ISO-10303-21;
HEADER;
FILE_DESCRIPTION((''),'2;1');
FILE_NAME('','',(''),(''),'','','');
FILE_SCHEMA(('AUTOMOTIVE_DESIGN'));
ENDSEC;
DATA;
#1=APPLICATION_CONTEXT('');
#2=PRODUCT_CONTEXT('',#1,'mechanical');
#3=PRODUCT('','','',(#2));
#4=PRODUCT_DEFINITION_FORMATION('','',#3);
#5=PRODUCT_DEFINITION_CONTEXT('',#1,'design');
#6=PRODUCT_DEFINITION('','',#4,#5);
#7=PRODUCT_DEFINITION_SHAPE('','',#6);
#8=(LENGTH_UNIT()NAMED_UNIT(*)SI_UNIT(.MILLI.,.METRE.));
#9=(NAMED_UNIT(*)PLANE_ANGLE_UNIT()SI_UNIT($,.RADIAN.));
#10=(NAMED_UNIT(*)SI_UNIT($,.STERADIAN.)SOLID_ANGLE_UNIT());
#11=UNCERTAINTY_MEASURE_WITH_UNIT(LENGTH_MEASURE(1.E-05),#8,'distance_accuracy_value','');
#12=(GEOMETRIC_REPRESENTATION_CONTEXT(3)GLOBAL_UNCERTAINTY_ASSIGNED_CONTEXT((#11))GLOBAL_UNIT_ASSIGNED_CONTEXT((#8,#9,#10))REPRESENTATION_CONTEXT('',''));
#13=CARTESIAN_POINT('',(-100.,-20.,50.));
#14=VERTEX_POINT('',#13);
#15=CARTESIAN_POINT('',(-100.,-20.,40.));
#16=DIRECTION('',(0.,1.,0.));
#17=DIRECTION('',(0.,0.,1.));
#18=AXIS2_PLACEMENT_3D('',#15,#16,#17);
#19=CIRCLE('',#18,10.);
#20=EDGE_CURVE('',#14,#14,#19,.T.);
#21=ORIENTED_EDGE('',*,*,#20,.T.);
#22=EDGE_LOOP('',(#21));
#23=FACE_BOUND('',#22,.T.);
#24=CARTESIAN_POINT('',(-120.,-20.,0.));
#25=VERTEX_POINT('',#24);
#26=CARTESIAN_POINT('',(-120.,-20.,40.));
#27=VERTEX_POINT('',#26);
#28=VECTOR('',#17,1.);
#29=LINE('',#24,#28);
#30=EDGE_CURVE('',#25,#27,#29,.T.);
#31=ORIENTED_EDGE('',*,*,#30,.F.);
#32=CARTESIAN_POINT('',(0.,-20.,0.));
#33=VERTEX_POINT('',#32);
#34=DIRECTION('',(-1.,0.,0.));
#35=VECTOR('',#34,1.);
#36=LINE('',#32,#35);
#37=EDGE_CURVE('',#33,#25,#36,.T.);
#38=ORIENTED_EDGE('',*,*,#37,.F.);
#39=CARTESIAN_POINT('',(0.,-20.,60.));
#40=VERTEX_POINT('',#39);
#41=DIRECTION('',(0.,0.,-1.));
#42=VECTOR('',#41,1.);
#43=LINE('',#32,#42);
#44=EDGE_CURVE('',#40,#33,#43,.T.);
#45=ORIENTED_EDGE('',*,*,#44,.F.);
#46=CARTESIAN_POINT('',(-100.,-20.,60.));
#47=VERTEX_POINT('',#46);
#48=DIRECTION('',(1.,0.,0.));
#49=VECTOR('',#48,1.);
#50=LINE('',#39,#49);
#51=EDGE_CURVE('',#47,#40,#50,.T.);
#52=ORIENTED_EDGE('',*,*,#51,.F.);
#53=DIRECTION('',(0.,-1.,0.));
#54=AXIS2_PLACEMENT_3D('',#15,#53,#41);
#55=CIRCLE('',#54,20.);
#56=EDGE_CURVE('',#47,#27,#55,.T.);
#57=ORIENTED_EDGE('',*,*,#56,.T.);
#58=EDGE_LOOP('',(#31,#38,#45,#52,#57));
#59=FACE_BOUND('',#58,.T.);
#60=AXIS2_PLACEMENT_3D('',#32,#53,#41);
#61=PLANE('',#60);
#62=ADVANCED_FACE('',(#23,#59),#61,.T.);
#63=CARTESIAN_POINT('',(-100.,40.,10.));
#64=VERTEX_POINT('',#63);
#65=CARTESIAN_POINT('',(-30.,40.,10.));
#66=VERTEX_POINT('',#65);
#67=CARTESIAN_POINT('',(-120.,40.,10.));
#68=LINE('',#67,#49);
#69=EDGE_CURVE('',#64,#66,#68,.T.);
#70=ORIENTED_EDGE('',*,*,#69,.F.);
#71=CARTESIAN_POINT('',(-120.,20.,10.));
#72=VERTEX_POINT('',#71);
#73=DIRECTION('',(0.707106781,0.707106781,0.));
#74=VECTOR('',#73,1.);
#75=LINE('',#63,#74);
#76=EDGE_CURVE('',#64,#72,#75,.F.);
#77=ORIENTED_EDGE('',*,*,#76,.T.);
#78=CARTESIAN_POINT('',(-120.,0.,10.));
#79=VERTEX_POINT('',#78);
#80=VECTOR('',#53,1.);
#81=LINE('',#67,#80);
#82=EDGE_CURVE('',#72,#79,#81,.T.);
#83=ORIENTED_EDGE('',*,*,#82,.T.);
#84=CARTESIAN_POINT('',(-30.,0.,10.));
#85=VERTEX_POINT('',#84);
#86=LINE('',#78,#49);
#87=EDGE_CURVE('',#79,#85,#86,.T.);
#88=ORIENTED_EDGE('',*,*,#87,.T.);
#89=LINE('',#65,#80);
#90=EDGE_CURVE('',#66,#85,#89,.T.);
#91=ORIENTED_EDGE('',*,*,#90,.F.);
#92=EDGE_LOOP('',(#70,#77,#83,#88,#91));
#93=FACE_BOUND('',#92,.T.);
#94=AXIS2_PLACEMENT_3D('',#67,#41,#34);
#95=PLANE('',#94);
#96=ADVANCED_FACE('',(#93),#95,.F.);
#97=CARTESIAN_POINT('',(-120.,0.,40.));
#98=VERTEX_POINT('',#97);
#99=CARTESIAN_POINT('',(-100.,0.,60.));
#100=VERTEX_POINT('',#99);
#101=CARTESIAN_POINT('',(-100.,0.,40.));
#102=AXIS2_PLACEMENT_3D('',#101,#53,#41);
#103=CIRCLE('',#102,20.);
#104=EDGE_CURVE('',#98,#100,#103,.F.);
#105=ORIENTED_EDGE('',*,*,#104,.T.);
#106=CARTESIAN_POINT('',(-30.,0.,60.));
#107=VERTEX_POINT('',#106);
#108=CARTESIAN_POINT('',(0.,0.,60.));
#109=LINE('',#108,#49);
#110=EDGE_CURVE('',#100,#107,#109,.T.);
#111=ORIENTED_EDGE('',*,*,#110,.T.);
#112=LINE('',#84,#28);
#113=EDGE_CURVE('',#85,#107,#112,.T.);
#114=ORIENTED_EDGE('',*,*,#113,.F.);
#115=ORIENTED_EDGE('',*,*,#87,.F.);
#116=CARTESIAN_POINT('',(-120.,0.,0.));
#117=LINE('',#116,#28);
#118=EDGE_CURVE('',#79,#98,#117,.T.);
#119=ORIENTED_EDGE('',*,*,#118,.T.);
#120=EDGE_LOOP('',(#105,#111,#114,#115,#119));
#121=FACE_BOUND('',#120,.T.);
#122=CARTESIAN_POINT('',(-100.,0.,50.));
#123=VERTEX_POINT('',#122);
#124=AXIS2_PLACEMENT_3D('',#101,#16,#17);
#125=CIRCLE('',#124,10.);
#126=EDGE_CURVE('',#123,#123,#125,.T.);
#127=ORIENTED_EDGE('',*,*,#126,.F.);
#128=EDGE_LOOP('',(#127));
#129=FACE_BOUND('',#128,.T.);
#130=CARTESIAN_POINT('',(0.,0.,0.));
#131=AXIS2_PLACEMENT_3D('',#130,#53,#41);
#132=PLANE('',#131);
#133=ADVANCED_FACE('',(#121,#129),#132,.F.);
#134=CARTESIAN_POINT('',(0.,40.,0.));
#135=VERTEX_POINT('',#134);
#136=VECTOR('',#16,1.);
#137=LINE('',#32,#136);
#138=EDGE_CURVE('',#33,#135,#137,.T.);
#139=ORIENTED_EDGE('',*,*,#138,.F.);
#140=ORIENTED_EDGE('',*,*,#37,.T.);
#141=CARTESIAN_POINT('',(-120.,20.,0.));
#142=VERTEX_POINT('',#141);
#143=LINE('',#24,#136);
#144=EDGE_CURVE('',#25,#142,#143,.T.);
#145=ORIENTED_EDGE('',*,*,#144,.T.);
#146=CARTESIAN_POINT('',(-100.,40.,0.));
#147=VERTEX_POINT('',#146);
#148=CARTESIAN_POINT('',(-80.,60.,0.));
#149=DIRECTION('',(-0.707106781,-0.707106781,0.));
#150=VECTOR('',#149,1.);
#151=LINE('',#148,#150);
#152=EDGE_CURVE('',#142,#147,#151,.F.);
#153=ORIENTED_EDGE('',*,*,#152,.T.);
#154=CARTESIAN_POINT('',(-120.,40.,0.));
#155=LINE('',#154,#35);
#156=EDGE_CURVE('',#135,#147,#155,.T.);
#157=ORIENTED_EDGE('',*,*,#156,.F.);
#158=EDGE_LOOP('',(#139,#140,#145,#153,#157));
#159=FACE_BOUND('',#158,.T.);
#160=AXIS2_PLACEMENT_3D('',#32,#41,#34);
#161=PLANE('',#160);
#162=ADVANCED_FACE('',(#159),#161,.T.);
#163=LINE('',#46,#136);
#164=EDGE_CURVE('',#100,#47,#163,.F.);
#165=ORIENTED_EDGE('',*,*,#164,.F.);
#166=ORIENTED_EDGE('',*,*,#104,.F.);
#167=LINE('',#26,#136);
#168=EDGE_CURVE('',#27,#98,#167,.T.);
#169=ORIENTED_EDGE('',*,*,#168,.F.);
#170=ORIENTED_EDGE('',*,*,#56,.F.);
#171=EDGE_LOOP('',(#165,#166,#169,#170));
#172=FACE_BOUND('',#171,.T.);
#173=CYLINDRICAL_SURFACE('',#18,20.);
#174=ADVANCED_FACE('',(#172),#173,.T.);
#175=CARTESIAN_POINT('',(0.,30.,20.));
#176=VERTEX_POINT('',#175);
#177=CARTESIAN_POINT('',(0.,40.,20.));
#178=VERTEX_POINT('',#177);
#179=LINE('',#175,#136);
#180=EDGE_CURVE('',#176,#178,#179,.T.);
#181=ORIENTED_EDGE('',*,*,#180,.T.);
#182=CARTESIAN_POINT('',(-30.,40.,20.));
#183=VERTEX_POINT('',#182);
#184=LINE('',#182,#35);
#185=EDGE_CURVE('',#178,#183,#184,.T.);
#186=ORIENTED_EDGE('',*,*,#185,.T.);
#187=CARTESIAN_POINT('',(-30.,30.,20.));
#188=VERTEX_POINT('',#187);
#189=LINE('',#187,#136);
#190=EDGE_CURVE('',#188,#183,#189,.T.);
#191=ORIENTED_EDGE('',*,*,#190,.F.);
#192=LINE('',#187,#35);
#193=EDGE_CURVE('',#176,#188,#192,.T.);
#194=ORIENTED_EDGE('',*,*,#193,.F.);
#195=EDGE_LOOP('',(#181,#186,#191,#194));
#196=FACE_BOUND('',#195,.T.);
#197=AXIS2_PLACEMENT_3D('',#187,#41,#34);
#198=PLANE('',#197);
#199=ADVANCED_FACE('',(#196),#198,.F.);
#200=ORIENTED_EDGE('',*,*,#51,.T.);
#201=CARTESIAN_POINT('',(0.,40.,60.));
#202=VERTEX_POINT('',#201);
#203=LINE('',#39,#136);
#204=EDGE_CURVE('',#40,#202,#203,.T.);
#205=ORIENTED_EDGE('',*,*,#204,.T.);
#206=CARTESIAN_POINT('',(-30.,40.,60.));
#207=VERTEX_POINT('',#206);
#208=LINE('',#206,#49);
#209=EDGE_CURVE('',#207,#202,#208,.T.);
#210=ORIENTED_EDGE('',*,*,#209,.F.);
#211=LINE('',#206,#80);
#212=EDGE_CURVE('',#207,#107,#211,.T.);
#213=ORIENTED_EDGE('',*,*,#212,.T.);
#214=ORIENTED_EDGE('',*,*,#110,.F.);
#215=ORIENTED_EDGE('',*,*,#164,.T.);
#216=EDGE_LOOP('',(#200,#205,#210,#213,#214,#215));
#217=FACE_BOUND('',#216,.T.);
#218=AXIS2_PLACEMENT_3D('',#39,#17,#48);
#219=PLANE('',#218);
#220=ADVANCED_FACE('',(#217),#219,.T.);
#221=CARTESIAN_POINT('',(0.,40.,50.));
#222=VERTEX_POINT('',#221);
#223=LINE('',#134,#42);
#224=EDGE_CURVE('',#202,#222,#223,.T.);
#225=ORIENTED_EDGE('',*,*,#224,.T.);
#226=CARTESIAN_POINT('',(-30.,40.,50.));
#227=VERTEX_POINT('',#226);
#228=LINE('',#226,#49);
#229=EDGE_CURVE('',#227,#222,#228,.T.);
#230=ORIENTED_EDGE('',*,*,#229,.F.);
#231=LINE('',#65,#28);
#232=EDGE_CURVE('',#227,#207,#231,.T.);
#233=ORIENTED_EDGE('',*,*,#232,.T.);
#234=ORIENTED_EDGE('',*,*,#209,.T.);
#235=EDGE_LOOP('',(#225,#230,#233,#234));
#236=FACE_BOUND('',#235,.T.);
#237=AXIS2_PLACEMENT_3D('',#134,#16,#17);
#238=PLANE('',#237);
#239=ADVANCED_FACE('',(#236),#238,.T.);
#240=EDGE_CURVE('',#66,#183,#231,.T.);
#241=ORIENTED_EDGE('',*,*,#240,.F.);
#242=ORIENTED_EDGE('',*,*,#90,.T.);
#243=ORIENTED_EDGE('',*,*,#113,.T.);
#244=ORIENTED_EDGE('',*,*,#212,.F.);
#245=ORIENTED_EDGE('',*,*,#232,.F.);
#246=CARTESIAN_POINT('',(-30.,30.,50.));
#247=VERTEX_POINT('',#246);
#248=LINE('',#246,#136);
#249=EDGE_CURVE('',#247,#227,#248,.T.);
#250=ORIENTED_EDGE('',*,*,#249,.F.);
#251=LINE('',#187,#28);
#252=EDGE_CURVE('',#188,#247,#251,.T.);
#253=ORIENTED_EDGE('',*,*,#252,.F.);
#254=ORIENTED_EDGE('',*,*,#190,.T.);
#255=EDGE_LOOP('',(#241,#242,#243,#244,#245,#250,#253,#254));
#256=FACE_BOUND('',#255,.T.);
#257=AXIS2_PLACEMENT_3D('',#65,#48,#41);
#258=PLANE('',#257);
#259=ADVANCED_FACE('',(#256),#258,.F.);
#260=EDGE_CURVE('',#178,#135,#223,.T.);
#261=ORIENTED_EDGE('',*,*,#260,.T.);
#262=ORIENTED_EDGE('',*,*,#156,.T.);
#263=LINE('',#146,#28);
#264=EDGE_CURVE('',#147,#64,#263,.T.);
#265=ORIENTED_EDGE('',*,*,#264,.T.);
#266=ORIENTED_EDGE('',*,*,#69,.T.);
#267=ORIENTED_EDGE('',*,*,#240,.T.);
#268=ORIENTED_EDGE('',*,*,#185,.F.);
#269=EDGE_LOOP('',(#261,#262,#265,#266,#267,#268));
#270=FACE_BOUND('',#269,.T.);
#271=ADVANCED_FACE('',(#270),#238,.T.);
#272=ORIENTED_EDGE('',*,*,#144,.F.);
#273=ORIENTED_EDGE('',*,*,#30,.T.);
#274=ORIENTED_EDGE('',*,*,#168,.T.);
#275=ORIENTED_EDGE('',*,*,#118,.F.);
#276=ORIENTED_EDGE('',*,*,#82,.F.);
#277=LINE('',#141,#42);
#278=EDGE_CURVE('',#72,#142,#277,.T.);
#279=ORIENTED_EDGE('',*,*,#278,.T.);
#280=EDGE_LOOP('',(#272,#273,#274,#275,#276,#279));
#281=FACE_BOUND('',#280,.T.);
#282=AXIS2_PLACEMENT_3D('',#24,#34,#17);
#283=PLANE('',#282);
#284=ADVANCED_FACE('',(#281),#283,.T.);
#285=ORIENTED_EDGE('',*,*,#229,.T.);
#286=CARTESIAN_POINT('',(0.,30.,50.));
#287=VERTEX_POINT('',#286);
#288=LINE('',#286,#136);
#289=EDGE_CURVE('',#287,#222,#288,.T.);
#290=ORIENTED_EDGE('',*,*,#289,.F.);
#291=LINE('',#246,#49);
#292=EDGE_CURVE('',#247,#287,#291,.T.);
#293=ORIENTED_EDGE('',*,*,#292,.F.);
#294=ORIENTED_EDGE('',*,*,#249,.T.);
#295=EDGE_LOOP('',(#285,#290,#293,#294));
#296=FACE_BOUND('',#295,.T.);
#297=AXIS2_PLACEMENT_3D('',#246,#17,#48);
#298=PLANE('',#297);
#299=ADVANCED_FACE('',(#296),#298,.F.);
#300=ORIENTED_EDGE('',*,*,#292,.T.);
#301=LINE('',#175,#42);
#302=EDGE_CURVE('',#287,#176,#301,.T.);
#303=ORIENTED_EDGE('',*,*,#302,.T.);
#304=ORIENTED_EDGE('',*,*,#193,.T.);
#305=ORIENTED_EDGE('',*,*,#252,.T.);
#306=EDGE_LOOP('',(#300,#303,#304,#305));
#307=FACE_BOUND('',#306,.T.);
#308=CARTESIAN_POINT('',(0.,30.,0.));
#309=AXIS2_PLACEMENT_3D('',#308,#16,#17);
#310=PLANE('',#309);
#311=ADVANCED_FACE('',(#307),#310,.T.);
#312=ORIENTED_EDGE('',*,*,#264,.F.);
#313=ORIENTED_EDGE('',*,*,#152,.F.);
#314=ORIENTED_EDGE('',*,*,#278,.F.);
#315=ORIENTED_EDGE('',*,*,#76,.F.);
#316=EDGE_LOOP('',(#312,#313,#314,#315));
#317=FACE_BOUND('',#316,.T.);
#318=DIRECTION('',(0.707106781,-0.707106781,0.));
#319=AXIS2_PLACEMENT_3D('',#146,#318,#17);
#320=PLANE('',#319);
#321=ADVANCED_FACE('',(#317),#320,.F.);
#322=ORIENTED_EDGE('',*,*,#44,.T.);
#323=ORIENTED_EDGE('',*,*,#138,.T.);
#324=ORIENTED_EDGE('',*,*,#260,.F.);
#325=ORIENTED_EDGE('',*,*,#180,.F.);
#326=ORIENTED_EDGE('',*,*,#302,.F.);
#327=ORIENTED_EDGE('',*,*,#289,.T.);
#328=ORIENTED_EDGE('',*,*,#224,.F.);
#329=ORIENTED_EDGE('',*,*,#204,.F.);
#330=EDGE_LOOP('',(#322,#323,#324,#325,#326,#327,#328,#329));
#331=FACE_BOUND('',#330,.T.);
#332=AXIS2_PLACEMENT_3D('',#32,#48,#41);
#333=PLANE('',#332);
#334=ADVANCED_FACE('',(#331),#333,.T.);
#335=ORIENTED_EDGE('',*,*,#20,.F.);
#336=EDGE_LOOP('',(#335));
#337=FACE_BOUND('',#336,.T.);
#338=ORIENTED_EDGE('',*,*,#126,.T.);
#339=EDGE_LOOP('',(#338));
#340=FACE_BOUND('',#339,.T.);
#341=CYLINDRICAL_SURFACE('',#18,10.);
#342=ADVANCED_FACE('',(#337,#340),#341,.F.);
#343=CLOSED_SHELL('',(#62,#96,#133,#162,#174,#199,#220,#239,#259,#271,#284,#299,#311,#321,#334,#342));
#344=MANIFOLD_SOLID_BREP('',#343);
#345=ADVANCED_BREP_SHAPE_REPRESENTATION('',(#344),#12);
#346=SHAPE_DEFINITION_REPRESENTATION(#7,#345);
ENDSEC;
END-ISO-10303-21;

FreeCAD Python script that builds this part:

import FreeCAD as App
import Part
import Sketcher

V = App.Vector
Q = App.Units.Quantity


def edges_at(feature, points):
    """Names of the edges that pass closest to the given points."""
    edges = feature.Shape.Edges
    near = lambda p: min(range(len(edges)), key=lambda i: edges[i].distToShape(Part.Vertex(*p))[0])
    return sorted({f"Edge{near(p) + 1}" for p in points})


def add_polygon(sketch, points):
    """Adds a closed chain of lines whose ends are joined by coincident constraints."""
    first, n = sketch.GeometryCount, len(points)
    for a, b in zip(points, points[1:] + points[:1]):
        sketch.addGeometry(Part.LineSegment(App.Vector(*a, 0), App.Vector(*b, 0)), False)
    for i in range(n):
        sketch.addConstraint(Sketcher.Constraint("Coincident", first + i, 2, first + (i + 1) % n, 1))

doc = App.newDocument("Part")
body = doc.addObject("PartDesign::Body", "Body")

# Sketch on XZ plane
sketch1 = body.newObject("Sketcher::SketchObject", "Sketch")
sketch1.AttachmentSupport = (doc.getObject("XZ_Plane"), [""])
sketch1.MapMode = "FlatFace"
add_polygon(sketch1, [(-120, 0), (-120, 60), (0, 60), (0, 0)])  # lines 0-3
sketch1.addConstraint([
    Sketcher.Constraint("Vertical", 0),
    Sketcher.Constraint("Horizontal", 1),
    Sketcher.Constraint("Vertical", 2),
    Sketcher.Constraint("Horizontal", 3),
    Sketcher.Constraint("Coincident", 2, 2, -1, 1),
    Sketcher.Constraint("DistanceX", 1, 1, 1, 2, Q("120 mm")),
    Sketcher.Constraint("DistanceY", 0, 1, 0, 2, Q("60 mm")),
])
pad1 = body.newObject("PartDesign::Pad", "Pad")
pad1.Profile = sketch1
pad1.Length = 20

# Sketch on XZ plane
sketch2 = body.newObject("Sketcher::SketchObject", "Sketch001")
sketch2.AttachmentSupport = (doc.getObject("XZ_Plane"), [""])
sketch2.MapMode = "FlatFace"
add_polygon(sketch2, [(-120, 10), (-30, 10), (-30, 60), (0, 60), (0, 0), (-120, 0)])  # lines 0-5
sketch2.addConstraint([
    Sketcher.Constraint("Horizontal", 0),
    Sketcher.Constraint("Vertical", 1),
    Sketcher.Constraint("Horizontal", 2),
    Sketcher.Constraint("Vertical", 3),
    Sketcher.Constraint("Horizontal", 4),
    Sketcher.Constraint("Vertical", 5),
    Sketcher.Constraint("Coincident", 3, 2, -1, 1),
    Sketcher.Constraint("DistanceX", 0, 1, 0, 2, Q("90 mm")),
    Sketcher.Constraint("DistanceX", 2, 1, 2, 2, Q("30 mm")),
    Sketcher.Constraint("DistanceY", 1, 1, 1, 2, Q("50 mm")),
    Sketcher.Constraint("DistanceY", 3, 2, 3, 1, Q("60 mm")),
])
pad2 = body.newObject("PartDesign::Pad", "Pad001")
pad2.Profile = sketch2
pad2.Length = 40
pad2.Reversed = True
doc.recompute()

fillet = body.newObject("PartDesign::Fillet", "Fillet")
fillet.Base = (pad2, edges_at(pad2, [(-120, -10, 60)]))
fillet.Radius = 20
doc.recompute()

chamfer = body.newObject("PartDesign::Chamfer", "Chamfer")
chamfer.Base = (fillet, edges_at(fillet, [(-120, 40, 5)]))
chamfer.Size = 20

# Sketch on XZ plane
sketch3 = body.newObject("Sketcher::SketchObject", "Sketch002")
sketch3.AttachmentSupport = (doc.getObject("XZ_Plane"), [""])
sketch3.MapMode = "FlatFace"
sketch3.AttachmentOffset = App.Placement(V(0, 0, -40), App.Rotation())
add_polygon(sketch3, [(-30, 20), (-30, 50), (0, 50), (0, 20)])  # lines 0-3
sketch3.addConstraint([
    Sketcher.Constraint("Vertical", 0),
    Sketcher.Constraint("Horizontal", 1),
    Sketcher.Constraint("Vertical", 2),
    Sketcher.Constraint("Horizontal", 3),
    Sketcher.Constraint("PointOnObject", 1, 2, -2),
    Sketcher.Constraint("Equal", 3, 0),
    Sketcher.Constraint("DistanceX", 1, 1, 1, 2, Q("30 mm")),
    Sketcher.Constraint("DistanceY", -1, 1, 0, 2, Q("50 mm")),
])
pocket1 = body.newObject("PartDesign::Pocket", "Pocket")
pocket1.Profile = sketch3
pocket1.Length = 10
pocket1.Reversed = True

# Sketch on XZ plane
sketch4 = body.newObject("Sketcher::SketchObject", "Sketch003")
sketch4.AttachmentSupport = (doc.getObject("XZ_Plane"), [""])
sketch4.MapMode = "FlatFace"
sketch4.addGeometry(Part.Circle(V(-100, 40, 0), V(0, 0, 1), 10), False)
sketch4.addConstraint([
    Sketcher.Constraint("Diameter", 0, Q("20 mm")),
    Sketcher.Constraint("DistanceX", 0, 3, -1, 1, Q("100 mm")),
    Sketcher.Constraint("DistanceY", -1, 1, 0, 3, Q("40 mm")),
])
pocket2 = body.newObject("PartDesign::Pocket", "Pocket001")
pocket2.Profile = sketch4
pocket2.Type = "ThroughAll"
pocket2.Reversed = True

doc.recompute()
